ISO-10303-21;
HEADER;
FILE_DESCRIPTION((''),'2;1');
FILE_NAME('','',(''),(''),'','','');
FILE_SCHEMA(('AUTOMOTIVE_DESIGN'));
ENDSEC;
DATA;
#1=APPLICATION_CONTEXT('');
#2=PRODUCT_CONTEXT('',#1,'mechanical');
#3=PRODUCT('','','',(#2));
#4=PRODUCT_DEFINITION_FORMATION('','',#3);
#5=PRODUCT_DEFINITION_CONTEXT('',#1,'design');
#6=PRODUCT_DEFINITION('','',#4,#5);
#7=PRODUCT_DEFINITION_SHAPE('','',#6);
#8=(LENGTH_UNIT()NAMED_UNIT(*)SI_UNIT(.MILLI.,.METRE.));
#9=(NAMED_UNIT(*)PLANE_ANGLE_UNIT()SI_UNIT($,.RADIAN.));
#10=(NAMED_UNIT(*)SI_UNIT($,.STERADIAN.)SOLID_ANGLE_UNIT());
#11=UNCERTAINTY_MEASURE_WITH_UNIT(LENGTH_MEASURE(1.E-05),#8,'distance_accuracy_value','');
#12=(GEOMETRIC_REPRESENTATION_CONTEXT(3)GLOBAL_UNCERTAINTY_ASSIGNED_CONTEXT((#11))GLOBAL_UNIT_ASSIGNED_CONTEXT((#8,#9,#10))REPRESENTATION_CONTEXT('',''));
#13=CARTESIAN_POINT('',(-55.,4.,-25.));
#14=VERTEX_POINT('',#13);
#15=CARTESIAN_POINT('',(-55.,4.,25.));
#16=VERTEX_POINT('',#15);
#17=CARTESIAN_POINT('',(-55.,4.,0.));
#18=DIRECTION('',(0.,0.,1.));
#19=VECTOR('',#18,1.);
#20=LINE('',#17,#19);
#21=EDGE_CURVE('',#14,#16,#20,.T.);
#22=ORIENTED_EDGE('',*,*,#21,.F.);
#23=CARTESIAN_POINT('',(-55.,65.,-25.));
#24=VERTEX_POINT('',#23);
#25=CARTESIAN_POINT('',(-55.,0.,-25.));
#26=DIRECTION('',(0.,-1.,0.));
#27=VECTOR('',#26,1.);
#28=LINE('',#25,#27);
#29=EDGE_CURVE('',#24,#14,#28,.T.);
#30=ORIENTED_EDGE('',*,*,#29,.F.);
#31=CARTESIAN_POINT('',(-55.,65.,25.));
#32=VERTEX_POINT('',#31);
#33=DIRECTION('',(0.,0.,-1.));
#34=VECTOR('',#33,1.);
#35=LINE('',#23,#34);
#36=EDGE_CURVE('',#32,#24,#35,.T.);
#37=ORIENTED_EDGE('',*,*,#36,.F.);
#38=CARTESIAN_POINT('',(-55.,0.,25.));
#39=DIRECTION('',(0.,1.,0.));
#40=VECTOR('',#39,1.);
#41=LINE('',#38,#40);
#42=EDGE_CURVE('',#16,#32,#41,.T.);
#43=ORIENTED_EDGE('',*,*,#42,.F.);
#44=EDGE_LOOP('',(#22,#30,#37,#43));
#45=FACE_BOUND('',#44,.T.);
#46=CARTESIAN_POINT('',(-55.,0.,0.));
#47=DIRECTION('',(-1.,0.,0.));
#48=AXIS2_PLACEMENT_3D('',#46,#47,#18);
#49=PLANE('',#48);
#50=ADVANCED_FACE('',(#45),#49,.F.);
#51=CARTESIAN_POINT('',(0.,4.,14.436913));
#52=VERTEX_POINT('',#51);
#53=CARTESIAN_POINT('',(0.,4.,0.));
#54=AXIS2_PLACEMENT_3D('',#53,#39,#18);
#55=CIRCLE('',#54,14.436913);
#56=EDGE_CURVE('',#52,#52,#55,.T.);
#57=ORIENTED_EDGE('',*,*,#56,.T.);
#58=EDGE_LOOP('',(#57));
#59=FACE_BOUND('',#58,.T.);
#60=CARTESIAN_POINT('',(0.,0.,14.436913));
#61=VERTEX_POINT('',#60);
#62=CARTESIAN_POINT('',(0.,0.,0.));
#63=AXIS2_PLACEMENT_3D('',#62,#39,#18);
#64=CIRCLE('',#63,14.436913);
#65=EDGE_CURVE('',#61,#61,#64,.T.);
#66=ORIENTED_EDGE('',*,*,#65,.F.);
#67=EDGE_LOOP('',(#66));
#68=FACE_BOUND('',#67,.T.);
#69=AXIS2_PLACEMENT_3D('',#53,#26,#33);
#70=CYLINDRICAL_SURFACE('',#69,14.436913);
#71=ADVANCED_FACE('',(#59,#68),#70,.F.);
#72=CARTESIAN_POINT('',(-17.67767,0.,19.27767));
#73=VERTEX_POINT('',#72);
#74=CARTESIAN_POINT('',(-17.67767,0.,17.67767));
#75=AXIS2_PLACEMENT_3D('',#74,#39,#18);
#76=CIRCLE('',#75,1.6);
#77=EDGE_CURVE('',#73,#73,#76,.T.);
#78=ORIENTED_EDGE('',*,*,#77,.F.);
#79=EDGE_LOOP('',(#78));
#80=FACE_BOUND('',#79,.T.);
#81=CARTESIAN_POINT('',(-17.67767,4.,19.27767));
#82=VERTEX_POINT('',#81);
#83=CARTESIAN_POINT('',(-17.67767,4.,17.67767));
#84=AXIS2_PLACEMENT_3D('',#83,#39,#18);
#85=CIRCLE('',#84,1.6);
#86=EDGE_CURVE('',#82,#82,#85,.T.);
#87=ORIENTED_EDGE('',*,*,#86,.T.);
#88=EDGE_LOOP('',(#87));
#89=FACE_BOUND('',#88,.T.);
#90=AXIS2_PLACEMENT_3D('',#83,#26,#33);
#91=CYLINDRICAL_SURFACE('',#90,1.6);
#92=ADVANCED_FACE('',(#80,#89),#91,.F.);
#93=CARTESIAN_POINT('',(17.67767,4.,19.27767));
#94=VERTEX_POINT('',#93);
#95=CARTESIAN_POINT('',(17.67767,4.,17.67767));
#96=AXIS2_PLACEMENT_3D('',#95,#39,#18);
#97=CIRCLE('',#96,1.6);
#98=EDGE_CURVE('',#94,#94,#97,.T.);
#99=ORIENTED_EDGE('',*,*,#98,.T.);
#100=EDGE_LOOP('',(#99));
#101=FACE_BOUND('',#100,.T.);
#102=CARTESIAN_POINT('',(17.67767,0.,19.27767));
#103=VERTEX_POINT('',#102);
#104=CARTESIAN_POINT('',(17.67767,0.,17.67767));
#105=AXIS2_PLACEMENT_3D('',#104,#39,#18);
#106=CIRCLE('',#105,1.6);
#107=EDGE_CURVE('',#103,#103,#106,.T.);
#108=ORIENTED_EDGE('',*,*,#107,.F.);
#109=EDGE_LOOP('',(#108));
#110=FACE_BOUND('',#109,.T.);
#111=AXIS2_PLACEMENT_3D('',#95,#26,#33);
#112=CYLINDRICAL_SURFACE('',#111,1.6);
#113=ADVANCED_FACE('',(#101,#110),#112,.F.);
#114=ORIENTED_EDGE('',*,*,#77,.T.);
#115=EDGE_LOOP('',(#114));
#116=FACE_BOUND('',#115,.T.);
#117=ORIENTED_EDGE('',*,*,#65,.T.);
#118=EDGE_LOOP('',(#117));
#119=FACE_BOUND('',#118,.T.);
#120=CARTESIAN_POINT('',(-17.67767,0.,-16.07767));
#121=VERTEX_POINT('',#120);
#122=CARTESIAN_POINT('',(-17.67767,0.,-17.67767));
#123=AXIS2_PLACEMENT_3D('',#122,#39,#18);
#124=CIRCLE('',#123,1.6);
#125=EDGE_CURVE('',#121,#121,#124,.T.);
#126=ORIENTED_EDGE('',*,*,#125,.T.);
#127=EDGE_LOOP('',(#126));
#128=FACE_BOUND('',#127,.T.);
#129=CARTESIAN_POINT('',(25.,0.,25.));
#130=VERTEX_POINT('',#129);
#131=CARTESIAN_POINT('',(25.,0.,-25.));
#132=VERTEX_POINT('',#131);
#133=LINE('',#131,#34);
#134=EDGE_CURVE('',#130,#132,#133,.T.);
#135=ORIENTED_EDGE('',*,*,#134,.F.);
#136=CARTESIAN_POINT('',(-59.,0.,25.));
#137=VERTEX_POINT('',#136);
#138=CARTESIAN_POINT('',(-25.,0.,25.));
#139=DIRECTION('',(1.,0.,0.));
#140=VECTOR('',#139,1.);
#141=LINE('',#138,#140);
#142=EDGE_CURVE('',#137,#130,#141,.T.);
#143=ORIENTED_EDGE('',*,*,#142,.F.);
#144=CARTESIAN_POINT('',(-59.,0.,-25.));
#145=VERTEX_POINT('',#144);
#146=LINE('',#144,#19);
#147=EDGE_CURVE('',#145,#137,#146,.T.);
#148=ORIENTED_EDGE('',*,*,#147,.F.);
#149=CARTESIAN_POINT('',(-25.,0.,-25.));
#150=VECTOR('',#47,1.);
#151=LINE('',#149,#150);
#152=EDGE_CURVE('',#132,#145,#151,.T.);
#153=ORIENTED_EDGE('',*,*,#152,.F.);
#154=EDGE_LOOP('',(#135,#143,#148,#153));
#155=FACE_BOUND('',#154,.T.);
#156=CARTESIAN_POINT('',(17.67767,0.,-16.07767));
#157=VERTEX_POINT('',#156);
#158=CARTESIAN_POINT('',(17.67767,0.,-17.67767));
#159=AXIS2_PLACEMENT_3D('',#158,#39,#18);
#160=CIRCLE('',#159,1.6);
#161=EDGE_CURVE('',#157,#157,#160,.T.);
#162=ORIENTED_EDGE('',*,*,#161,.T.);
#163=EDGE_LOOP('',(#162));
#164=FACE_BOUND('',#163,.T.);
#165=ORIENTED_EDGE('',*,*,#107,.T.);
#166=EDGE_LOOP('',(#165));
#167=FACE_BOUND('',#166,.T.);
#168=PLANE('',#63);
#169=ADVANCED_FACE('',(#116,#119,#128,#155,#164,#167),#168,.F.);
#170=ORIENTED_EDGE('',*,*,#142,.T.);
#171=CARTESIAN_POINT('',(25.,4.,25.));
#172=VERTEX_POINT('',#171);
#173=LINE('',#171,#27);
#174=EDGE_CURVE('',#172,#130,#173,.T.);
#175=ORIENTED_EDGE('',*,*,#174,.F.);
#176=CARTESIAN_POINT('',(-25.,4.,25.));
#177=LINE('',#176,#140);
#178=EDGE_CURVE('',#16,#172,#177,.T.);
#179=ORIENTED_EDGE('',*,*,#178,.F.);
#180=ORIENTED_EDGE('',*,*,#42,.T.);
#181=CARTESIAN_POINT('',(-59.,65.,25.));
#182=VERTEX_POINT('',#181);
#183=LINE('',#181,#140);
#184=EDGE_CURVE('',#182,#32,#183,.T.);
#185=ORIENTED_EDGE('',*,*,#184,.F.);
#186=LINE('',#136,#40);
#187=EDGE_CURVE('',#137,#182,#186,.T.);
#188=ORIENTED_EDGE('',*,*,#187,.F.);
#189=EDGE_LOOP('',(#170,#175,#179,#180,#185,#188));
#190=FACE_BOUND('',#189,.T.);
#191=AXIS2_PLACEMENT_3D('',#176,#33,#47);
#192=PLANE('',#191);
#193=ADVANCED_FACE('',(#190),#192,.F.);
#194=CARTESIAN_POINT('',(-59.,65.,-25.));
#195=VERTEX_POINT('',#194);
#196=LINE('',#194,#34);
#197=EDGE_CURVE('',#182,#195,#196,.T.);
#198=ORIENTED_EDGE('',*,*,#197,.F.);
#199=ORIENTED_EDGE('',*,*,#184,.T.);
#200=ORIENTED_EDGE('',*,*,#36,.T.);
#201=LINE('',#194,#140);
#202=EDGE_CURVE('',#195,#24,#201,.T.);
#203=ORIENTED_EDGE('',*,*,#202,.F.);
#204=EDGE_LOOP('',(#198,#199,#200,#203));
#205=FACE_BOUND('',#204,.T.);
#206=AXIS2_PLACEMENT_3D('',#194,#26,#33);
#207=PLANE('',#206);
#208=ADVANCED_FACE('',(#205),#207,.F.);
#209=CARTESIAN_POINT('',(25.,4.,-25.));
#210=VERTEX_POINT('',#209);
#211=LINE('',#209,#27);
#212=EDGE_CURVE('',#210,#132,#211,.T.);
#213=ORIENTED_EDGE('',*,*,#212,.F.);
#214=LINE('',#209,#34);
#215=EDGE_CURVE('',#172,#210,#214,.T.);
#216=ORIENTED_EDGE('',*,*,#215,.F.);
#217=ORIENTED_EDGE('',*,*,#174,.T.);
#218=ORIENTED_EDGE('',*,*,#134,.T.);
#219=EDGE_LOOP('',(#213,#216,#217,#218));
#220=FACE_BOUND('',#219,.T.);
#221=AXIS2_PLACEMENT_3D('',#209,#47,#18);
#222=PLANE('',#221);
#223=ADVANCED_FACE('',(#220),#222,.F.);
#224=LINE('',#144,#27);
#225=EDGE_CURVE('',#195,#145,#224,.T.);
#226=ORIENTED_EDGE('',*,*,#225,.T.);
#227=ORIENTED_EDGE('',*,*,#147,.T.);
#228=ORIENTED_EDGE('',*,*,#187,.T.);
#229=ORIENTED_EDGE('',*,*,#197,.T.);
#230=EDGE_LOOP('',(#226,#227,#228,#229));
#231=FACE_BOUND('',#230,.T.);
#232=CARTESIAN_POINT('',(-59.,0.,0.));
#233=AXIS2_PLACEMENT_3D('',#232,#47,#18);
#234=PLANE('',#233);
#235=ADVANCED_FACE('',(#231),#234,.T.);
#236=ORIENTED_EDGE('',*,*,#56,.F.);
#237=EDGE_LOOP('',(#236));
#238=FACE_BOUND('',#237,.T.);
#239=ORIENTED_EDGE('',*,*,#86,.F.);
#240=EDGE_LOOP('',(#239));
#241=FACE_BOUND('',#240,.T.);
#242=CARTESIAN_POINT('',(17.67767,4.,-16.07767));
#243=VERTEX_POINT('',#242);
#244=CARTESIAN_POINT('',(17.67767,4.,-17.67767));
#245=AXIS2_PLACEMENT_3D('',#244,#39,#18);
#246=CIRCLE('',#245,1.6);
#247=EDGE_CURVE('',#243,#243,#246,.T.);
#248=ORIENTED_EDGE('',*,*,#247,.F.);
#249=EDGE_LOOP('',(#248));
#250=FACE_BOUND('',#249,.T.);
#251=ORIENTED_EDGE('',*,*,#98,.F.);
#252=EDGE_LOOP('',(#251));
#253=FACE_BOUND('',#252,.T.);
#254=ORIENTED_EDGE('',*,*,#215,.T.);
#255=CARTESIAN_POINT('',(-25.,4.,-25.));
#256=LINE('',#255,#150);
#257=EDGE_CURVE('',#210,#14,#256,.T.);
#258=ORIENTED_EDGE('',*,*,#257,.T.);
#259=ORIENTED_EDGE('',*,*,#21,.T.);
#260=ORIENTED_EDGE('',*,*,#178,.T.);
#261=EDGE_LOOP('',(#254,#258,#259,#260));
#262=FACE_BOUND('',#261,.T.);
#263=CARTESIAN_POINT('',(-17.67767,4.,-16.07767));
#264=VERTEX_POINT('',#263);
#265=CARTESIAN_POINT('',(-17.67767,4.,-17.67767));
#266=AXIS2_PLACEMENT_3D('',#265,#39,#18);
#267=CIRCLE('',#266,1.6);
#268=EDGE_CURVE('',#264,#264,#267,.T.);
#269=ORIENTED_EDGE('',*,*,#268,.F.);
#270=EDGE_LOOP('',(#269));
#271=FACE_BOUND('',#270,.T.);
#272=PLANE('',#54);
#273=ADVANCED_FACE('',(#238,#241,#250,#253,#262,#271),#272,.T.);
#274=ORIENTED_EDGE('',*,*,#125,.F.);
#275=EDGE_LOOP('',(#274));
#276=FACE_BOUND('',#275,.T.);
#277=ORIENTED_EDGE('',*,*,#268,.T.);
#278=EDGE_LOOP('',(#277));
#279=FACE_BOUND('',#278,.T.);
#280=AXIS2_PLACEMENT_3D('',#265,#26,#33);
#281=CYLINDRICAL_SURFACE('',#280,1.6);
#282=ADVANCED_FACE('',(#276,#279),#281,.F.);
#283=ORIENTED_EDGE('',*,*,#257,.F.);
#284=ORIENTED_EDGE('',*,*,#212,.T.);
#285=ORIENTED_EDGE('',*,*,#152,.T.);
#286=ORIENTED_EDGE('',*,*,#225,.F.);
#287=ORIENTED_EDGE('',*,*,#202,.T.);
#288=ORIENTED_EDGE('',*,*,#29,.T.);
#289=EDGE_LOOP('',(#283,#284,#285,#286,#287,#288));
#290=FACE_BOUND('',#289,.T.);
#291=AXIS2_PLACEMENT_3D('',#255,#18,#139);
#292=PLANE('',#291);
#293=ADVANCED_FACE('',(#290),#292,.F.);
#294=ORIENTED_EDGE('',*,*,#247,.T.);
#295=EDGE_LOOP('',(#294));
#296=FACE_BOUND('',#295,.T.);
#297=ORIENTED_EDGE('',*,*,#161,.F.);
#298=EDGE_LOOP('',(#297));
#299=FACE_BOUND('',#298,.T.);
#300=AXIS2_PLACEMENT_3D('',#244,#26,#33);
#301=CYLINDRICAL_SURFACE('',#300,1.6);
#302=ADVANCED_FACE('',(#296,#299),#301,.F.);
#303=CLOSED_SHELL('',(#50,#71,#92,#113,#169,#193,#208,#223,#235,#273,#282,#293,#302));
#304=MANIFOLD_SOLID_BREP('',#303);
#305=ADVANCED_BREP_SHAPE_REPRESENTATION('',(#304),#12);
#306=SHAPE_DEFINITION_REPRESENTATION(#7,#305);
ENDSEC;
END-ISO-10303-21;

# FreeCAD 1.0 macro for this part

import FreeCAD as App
import Part
import Sketcher
Q = App.Units.Quantity

doc = App.newDocument("Part")
body = doc.addObject("PartDesign::Body", "Body")

# Sketch on XZ plane
sketch1 = doc.addObject("Sketcher::SketchObject", "Sketch")
body.addObject(sketch1)
sketch1.AttachmentSupport = (doc.XZ_Plane, [""])
sketch1.MapMode = "FlatFace"
sketch1.addGeometry([
    Part.LineSegment(App.Vector(-25, -25, 0), App.Vector(-25, 25, 0)),  # 0
    Part.LineSegment(App.Vector(-25, 25, 0), App.Vector(25, 25, 0)),  # 1
    Part.LineSegment(App.Vector(25, 25, 0), App.Vector(25, -25, 0)),  # 2
    Part.LineSegment(App.Vector(25, -25, 0), App.Vector(-25, -25, 0)),  # 3
    Part.Circle(App.Vector(-17.67767, 17.67767, 0), App.Vector(0, 0, 1), 1.6),  # 4
    Part.Circle(App.Vector(17.67767, 17.67767, 0), App.Vector(0, 0, 1), 1.6),  # 5
    Part.Circle(App.Vector(-17.67767, -17.67767, 0), App.Vector(0, 0, 1), 1.6),  # 6
    Part.Circle(App.Vector(0, 0, 0), App.Vector(0, 0, 1), 14.436913),  # 7
    Part.Circle(App.Vector(17.67767, -17.67767, 0), App.Vector(0, 0, 1), 1.6),  # 8
], False)
sketch1.addConstraint([
    Sketcher.Constraint("Coincident", 0, 2, 1, 1),
    Sketcher.Constraint("Coincident", 1, 2, 2, 1),
    Sketcher.Constraint("Coincident", 2, 2, 3, 1),
    Sketcher.Constraint("Coincident", 3, 2, 0, 1),
    Sketcher.Constraint("Vertical", 0),
    Sketcher.Constraint("Horizontal", 1),
    Sketcher.Constraint("Vertical", 2),
    Sketcher.Constraint("Horizontal", 3),
    Sketcher.Constraint("Coincident", 7, 3, -1, 1),
    Sketcher.Constraint("Equal", 4, 5),
    Sketcher.Constraint("Equal", 5, 6),
    Sketcher.Constraint("Equal", 6, 8),
    Sketcher.Constraint("Symmetric", 5, 3, 6, 3, -1, 1),
    Sketcher.Constraint("Symmetric", 4, 3, 8, 3, -1, 1),
    Sketcher.Constraint("Symmetric", 0, 2, 2, 2, -1, 1),
    Sketcher.Constraint("Symmetric", 4, 3, 5, 3, -2),
    Sketcher.Constraint("Equal", 3, 0),
    Sketcher.Constraint("Diameter", 4, Q("3.2 mm")),
    Sketcher.Constraint("DistanceX", 1, 1, 1, 2, Q("50 mm")),
    Sketcher.Constraint("Diameter", 7, Q("28.873827 mm")),
    Sketcher.Constraint("DistanceX", 4, 3, -1, 1, Q("17.67767 mm")),
    Sketcher.Constraint("DistanceY", -1, 1, 4, 3, Q("17.67767 mm")),
])
pad1 = doc.addObject("PartDesign::Pad", "Pad")
body.addObject(pad1)
pad1.Profile = sketch1
pad1.Length = 4
pad1.Reversed = True

# Sketch on XZ plane
sketch2 = doc.addObject("Sketcher::SketchObject", "Sketch001")
body.addObject(sketch2)
sketch2.AttachmentSupport = (doc.XZ_Plane, [""])
sketch2.MapMode = "FlatFace"
sketch2.addGeometry([
    Part.LineSegment(App.Vector(-56, -25, 0), App.Vector(-56, 25, 0)),
    Part.LineSegment(App.Vector(-56, 25, 0), App.Vector(-25, 25, 0)),
    Part.LineSegment(App.Vector(-25, 25, 0), App.Vector(-25, -25, 0)),
    Part.LineSegment(App.Vector(-25, -25, 0), App.Vector(-56, -25, 0)),
], False)
sketch2.addConstraint([
    Sketcher.Constraint("Coincident", 0, 2, 1, 1),
    Sketcher.Constraint("Coincident", 1, 2, 2, 1),
    Sketcher.Constraint("Coincident", 2, 2, 3, 1),
    Sketcher.Constraint("Coincident", 3, 2, 0, 1),
    Sketcher.Constraint("Vertical", 0),
    Sketcher.Constraint("Horizontal", 1),
    Sketcher.Constraint("Vertical", 2),
    Sketcher.Constraint("Horizontal", 3),
    Sketcher.Constraint("DistanceX", 1, 1, 1, 2, Q("31 mm")),
    Sketcher.Constraint("DistanceY", 0, 1, 0, 2, Q("50 mm")),
    Sketcher.Constraint("DistanceX", 0, 2, -1, 1, Q("56 mm")),
    Sketcher.Constraint("DistanceY", -1, 1, 0, 2, Q("25 mm")),
])
pad2 = doc.addObject("PartDesign::Pad", "Pad001")
body.addObject(pad2)
pad2.Profile = sketch2
pad2.Length = 4
pad2.Reversed = True

# Sketch on YZ plane
sketch3 = doc.addObject("Sketcher::SketchObject", "Sketch002")
body.addObject(sketch3)
sketch3.AttachmentSupport = (doc.YZ_Plane, [""])
sketch3.MapMode = "FlatFace"
sketch3.AttachmentOffset = App.Placement(App.Vector(0, 0, -55), App.Rotation())
sketch3.addGeometry([
    Part.LineSegment(App.Vector(65, -25, 0), App.Vector(0, -25, 0)),
    Part.LineSegment(App.Vector(0, -25, 0), App.Vector(0, 25, 0)),
    Part.LineSegment(App.Vector(0, 25, 0), App.Vector(65, 25, 0)),
    Part.LineSegment(App.Vector(65, 25, 0), App.Vector(65, -25, 0)),
], False)
sketch3.addConstraint([
    Sketcher.Constraint("Coincident", 0, 2, 1, 1),
    Sketcher.Constraint("Coincident", 1, 2, 2, 1),
    Sketcher.Constraint("Coincident", 2, 2, 3, 1),
    Sketcher.Constraint("Coincident", 3, 2, 0, 1),
    Sketcher.Constraint("Horizontal", 0),
    Sketcher.Constraint("Vertical", 1),
    Sketcher.Constraint("Horizontal", 2),
    Sketcher.Constraint("Vertical", 3),
    Sketcher.Constraint("Symmetric", 0, 2, 1, 2, -1, 1),
    Sketcher.Constraint("DistanceX", 0, 2, 0, 1, Q("65 mm")),
    Sketcher.Constraint("DistanceY", 1, 1, 1, 2, Q("50 mm")),
])
pad3 = doc.addObject("PartDesign::Pad", "Pad002")
body.addObject(pad3)
pad3.Profile = sketch3
pad3.Length = 4
pad3.Reversed = True

doc.recompute()
